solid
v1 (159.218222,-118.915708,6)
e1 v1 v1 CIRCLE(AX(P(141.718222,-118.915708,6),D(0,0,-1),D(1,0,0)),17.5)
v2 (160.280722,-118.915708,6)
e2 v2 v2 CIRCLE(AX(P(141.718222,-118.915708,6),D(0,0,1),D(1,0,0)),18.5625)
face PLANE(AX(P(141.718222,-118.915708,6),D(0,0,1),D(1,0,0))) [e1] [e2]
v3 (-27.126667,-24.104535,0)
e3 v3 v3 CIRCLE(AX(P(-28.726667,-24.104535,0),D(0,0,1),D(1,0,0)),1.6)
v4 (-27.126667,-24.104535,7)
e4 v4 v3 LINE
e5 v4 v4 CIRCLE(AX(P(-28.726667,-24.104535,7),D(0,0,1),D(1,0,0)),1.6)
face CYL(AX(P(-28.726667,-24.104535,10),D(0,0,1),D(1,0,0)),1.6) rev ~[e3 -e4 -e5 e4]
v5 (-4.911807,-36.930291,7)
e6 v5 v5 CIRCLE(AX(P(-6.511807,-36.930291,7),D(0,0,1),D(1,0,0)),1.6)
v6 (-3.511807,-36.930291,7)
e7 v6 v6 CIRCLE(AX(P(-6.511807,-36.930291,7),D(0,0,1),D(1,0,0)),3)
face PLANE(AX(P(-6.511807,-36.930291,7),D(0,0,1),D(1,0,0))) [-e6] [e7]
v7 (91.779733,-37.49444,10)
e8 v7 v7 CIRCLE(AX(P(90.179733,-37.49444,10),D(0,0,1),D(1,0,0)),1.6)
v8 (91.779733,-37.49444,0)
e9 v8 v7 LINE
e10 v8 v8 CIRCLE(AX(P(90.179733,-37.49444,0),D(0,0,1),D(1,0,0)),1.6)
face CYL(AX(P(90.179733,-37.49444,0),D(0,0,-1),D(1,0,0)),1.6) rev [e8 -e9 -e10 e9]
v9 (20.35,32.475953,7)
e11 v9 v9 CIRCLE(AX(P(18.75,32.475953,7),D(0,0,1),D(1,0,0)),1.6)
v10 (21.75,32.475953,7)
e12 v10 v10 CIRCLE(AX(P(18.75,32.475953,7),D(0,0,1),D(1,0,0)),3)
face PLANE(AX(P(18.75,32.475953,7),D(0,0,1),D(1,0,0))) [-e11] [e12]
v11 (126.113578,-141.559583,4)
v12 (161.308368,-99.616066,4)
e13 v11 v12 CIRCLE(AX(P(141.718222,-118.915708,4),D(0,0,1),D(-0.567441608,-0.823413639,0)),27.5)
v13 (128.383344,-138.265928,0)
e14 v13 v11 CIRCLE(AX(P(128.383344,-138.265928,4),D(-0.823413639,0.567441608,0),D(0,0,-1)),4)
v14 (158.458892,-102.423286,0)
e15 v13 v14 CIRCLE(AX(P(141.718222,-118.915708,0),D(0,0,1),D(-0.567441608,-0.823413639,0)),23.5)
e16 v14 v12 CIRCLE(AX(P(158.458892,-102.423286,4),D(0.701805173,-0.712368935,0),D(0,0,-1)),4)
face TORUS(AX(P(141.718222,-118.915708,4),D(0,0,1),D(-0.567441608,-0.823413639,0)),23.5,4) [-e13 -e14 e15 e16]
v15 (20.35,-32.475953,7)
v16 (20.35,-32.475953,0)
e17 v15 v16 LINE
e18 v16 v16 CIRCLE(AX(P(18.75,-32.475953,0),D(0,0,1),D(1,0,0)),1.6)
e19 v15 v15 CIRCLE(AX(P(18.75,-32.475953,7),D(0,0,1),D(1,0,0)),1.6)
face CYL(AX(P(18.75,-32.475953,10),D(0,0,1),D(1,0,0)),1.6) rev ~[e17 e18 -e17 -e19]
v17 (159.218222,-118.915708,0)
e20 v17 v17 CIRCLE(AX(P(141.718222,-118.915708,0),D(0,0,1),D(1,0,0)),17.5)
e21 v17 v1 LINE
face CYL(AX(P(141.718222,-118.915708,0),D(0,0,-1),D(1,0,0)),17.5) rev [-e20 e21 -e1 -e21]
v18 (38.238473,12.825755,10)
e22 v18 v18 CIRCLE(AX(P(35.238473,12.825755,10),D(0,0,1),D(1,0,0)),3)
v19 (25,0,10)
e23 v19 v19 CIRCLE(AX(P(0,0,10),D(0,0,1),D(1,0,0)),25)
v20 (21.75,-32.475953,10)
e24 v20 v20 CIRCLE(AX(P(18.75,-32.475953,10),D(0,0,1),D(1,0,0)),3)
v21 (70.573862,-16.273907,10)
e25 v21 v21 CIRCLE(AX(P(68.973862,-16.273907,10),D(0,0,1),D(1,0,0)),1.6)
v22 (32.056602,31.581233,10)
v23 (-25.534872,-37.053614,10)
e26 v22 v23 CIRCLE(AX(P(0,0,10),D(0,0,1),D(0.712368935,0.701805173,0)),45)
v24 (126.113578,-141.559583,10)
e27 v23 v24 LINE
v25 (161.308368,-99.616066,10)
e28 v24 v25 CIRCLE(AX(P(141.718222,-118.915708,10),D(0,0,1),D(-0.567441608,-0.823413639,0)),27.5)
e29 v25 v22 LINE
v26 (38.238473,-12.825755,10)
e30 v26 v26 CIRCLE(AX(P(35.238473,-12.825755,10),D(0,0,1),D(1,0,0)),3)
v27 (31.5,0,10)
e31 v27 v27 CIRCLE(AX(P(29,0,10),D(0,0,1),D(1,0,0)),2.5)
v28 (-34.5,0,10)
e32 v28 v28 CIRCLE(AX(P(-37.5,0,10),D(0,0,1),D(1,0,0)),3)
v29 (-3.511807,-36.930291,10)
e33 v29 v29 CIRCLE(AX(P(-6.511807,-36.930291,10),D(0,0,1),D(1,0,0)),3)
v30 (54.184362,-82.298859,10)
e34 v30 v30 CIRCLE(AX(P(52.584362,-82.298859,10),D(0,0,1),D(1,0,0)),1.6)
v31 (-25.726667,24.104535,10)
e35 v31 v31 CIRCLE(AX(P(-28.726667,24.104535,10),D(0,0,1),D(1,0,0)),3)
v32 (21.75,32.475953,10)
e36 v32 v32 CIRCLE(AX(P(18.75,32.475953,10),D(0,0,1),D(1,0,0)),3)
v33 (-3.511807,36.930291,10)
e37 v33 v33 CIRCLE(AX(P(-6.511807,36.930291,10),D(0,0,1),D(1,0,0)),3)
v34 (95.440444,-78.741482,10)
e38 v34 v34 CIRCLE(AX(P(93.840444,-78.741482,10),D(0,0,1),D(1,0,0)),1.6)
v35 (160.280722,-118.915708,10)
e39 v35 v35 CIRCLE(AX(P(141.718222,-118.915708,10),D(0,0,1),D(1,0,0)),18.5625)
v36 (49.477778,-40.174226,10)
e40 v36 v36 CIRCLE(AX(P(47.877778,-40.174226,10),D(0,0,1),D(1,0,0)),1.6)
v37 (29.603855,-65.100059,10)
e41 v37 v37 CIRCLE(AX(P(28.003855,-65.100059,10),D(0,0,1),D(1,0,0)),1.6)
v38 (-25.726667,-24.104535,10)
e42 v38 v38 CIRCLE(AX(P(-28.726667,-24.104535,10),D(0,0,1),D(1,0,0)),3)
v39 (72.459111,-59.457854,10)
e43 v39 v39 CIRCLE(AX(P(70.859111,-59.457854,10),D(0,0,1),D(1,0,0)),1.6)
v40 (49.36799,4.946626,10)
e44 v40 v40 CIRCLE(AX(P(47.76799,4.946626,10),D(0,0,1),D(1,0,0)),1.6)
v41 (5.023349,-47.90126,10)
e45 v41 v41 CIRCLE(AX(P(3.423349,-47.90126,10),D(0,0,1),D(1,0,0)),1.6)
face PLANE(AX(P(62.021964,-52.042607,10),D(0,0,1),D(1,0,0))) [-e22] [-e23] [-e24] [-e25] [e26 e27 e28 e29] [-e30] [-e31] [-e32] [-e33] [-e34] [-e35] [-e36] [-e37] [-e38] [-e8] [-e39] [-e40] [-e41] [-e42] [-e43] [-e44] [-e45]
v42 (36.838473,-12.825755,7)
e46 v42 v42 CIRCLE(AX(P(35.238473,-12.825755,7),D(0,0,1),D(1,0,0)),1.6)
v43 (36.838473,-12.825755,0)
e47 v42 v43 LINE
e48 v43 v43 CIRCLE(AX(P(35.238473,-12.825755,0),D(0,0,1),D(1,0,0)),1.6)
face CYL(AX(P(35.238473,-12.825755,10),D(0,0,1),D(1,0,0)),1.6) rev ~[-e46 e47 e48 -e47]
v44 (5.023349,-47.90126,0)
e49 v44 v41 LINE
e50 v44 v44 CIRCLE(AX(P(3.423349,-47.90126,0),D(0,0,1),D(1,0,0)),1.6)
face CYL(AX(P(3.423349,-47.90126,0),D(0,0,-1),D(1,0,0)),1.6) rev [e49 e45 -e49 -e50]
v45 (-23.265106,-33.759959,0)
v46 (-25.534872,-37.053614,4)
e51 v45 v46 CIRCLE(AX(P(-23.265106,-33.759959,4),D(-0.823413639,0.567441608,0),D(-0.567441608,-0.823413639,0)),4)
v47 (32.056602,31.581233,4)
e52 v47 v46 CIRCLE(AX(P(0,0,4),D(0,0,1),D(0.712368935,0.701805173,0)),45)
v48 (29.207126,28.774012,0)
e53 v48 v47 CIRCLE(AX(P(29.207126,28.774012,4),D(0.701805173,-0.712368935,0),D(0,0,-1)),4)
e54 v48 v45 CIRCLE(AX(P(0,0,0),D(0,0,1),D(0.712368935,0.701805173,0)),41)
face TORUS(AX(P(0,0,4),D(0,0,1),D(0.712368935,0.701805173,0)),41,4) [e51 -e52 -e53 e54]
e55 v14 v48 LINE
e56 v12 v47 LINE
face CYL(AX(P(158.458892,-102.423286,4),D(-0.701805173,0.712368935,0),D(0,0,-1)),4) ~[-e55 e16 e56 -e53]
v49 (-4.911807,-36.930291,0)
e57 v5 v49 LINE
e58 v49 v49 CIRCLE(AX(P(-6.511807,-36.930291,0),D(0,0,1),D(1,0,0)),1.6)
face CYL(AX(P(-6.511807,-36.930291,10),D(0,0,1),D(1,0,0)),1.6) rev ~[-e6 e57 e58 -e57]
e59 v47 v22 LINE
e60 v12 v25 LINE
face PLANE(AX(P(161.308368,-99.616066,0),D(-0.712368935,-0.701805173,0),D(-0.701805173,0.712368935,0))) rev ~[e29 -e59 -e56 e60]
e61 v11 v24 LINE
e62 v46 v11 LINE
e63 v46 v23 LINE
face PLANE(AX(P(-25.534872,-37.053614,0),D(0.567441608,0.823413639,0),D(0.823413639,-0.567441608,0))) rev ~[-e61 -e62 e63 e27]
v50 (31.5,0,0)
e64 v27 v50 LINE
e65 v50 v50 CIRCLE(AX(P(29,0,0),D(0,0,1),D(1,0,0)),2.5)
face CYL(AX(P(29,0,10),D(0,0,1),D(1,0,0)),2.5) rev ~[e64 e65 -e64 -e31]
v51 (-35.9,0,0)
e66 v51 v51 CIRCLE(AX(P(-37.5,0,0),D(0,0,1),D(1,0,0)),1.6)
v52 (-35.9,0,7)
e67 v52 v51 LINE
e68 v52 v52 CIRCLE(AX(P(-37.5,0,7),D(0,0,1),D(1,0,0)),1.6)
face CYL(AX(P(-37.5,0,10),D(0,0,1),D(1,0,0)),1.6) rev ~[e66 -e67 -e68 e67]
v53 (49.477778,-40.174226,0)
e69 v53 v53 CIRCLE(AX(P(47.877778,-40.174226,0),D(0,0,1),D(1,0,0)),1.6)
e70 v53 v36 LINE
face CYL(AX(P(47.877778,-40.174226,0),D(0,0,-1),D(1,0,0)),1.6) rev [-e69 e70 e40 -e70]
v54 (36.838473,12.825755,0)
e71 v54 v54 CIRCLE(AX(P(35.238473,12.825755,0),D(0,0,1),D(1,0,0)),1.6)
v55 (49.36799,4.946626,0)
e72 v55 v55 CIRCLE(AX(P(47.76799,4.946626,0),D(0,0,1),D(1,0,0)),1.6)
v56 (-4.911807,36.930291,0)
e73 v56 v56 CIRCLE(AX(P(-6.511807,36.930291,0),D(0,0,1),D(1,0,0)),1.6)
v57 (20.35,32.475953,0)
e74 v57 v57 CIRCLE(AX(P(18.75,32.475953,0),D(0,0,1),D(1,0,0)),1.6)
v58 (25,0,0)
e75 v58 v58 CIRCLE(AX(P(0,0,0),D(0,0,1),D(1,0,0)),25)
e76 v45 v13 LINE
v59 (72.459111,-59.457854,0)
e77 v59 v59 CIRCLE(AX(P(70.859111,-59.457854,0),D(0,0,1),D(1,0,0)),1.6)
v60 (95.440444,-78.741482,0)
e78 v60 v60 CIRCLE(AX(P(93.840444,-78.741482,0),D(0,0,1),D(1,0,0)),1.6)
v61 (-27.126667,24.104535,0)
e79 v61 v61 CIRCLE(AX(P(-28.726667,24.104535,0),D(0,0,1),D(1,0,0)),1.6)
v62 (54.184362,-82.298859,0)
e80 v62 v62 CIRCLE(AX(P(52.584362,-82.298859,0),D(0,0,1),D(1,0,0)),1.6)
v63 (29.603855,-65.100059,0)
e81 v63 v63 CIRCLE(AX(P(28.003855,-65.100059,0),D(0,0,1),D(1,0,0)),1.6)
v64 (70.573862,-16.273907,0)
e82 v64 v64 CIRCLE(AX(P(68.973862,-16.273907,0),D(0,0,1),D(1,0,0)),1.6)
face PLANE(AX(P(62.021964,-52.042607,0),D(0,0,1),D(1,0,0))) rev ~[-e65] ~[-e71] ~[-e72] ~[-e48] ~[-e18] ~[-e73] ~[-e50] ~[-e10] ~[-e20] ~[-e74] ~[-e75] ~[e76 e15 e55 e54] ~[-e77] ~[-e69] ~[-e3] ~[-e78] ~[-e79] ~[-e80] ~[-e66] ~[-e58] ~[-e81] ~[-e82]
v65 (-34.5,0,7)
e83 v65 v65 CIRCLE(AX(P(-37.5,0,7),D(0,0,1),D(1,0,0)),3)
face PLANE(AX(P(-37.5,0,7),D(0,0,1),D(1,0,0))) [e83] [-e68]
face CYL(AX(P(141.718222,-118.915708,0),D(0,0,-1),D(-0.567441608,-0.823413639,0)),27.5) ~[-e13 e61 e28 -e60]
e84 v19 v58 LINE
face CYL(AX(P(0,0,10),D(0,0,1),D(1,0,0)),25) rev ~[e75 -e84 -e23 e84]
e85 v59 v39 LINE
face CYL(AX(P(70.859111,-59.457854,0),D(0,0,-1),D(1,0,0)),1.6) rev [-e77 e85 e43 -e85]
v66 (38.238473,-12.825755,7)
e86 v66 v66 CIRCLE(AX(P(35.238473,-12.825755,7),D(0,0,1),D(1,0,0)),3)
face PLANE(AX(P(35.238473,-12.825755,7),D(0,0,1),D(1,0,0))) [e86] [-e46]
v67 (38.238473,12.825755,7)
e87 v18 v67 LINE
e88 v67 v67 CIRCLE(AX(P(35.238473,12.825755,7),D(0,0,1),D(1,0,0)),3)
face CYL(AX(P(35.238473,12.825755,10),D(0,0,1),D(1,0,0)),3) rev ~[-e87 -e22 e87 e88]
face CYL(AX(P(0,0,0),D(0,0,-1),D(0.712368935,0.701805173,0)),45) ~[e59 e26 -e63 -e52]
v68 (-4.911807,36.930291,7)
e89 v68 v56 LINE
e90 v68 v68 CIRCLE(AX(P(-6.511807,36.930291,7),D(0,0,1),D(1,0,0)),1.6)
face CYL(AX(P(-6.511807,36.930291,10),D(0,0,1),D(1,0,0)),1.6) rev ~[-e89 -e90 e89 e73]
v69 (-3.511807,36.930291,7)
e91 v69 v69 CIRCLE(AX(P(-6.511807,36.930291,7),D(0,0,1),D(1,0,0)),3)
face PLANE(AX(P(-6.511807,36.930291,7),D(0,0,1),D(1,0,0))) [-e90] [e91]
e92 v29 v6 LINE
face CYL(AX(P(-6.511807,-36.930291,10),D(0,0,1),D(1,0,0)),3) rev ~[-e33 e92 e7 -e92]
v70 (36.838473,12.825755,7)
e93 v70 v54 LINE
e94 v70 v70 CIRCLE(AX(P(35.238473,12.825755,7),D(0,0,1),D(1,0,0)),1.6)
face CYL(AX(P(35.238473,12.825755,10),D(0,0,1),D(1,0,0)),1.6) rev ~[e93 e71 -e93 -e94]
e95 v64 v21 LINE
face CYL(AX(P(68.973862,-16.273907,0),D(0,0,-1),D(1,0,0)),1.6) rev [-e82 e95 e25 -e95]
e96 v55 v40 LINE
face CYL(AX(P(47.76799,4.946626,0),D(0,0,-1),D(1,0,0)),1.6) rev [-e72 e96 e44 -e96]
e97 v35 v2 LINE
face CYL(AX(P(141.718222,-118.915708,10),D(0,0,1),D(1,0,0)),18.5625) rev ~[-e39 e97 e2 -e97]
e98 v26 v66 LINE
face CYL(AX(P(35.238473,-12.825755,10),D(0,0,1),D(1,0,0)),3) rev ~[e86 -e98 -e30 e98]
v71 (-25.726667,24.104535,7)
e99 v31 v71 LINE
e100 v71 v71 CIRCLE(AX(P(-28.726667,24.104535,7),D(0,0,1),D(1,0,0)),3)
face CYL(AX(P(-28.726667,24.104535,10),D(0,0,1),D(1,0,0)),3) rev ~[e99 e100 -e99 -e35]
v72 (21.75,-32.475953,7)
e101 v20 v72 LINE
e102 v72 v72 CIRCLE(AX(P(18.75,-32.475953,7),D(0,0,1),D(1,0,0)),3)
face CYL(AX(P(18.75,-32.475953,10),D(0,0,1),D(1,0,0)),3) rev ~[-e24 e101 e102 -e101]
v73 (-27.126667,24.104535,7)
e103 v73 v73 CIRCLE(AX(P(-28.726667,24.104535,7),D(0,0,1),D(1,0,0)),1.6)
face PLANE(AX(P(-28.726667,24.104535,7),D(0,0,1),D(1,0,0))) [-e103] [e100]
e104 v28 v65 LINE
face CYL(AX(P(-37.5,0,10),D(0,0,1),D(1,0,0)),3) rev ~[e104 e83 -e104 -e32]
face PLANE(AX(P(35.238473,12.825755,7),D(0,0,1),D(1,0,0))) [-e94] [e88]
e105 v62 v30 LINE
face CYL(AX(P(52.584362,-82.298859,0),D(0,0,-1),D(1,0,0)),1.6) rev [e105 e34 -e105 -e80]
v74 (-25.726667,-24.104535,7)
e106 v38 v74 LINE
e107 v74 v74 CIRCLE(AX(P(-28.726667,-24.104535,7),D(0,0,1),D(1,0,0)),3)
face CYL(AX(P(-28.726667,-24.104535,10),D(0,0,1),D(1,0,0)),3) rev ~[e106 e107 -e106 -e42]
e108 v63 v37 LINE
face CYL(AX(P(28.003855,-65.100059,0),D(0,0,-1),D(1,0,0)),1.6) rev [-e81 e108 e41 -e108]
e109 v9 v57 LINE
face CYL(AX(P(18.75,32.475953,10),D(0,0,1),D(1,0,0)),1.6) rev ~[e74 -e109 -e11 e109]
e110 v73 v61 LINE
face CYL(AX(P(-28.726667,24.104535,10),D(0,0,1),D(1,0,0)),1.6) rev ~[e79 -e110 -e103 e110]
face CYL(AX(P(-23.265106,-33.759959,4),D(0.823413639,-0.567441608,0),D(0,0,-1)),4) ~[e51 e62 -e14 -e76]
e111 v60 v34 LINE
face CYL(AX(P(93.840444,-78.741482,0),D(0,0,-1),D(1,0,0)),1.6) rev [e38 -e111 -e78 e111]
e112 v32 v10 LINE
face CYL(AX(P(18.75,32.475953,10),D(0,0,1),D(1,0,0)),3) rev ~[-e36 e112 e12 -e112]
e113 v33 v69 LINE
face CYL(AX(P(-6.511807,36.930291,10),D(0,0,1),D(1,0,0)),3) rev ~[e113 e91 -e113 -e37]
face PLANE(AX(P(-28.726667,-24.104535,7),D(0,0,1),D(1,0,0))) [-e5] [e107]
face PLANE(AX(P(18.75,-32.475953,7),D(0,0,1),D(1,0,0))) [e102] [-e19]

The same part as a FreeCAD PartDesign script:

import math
import FreeCAD as App
import Part
import Sketcher

V = App.Vector


def edges_at(feature, points):
    """Names of the edges that pass closest to the given points."""
    edges = feature.Shape.Edges
    near = lambda p: min(range(len(edges)), key=lambda i: edges[i].distToShape(Part.Vertex(*p))[0])
    return sorted({f"Edge{near(p) + 1}" for p in points})

doc = App.newDocument("Part")
body = doc.addObject("PartDesign::Body", "Body")

sketch1 = doc.addObject("Sketcher::SketchObject", "Sketch")
body.addObject(sketch1)
sketch1.AttachmentSupport = (doc.XY_Plane, [""])
sketch1.MapMode = "FlatFace"
sketch1.addGeometry([
    Part.LineSegment(V(-25.534872, -37.053614, 0), V(126.113578, -141.559583, 0)),
    Part.ArcOfCircle(Part.Circle(V(141.718222, -118.915708, 0), V(0, 0, 1), 27.5), math.radians(-124.572013), math.radians(44.572013)),
    Part.LineSegment(V(161.308368, -99.616066, 0), V(32.056602, 31.581233, 0)),
    Part.ArcOfCircle(Part.Circle(V(0, 0, 0), V(0, 0, 1), 45), math.radians(44.572013), math.radians(235.427987)),
    Part.Circle(V(28.003855, -65.100059, 0), V(0, 0, 1), 1.6),
    Part.Circle(V(52.584362, -82.298859, 0), V(0, 0, 1), 1.6),
    Part.Circle(V(141.718222, -118.915708, 0), V(0, 0, 1), 17.5),
    Part.Circle(V(93.840444, -78.741482, 0), V(0, 0, 1), 1.6),
    Part.Circle(V(3.423349, -47.90126, 0), V(0, 0, 1), 1.6),
    Part.Circle(V(70.859111, -59.457854, 0), V(0, 0, 1), 1.6),
    Part.Circle(V(47.877778, -40.174226, 0), V(0, 0, 1), 1.6),
    Part.Circle(V(68.973862, -16.273907, 0), V(0, 0, 1), 1.6),
    Part.Circle(V(47.76799, 4.946626, 0), V(0, 0, 1), 1.6),
    Part.Circle(V(90.179733, -37.49444, 0), V(0, 0, 1), 1.6),
], False)
sketch1.addConstraint([
    Sketcher.Constraint("Tangent", 0, 2, 1, 1),
    Sketcher.Constraint("Tangent", 1, 2, 2, 1),
    Sketcher.Constraint("Tangent", 2, 2, 3, 1),
    Sketcher.Constraint("Tangent", 3, 2, 0, 1),
    Sketcher.Constraint("Coincident", 3, 3, -1, 1),
    Sketcher.Constraint("Coincident", 6, 3, 1, 3),
    Sketcher.Constraint("Equal", 4, 5),
    Sketcher.Constraint("Equal", 5, 7),
    Sketcher.Constraint("Equal", 7, 8),
    Sketcher.Constraint("Equal", 8, 9),
    Sketcher.Constraint("Equal", 9, 10),
    Sketcher.Constraint("Equal", 10, 11),
    Sketcher.Constraint("Equal", 11, 12),
    Sketcher.Constraint("Equal", 12, 13),
    Sketcher.Constraint("Diameter", 6, 35.0),
    Sketcher.Constraint("Radius", 3, 45.0),
    Sketcher.Constraint("Diameter", 4, 3.2),
    Sketcher.Constraint("Radius", 1, 27.5),
    Sketcher.Constraint("DistanceY", 5, 3, 4, 3, 17.1988),
    Sketcher.Constraint("DistanceY", 4, 3, 8, 3, 17.1988),
    Sketcher.Constraint("DistanceX", 5, 3, 11, 3, 16.3895),
    Sketcher.Constraint("DistanceY", 0, 2, 7, 3, 62.818101),
    Sketcher.Constraint("DistanceX", -1, 1, 1, 3, 141.718222),
    Sketcher.Constraint("DistanceY", 4, 3, -1, 1, 65.100059),
    Sketcher.Constraint("DistanceX", -1, 1, 5, 3, 52.584362),
    Sketcher.Constraint("DistanceX", -1, 1, 8, 3, 3.423349),
    Sketcher.Constraint("DistanceX", -1, 1, 9, 3, 70.859111),
    Sketcher.Constraint("DistanceX", -1, 1, 12, 3, 47.76799),
    Sketcher.Constraint("DistanceY", 13, 3, -1, 1, 37.49444),
    Sketcher.Constraint("DistanceY", 1, 3, 4, 3, 53.815648),
    Sketcher.Constraint("DistanceX", 4, 3, 7, 3, 65.836589),
    Sketcher.Constraint("DistanceY", 7, 3, 9, 3, 19.283628),
    Sketcher.Constraint("DistanceY", 9, 3, 10, 3, 19.283628),
    Sketcher.Constraint("DistanceX", 8, 3, 10, 3, 44.454429),
    Sketcher.Constraint("DistanceY", 10, 3, 11, 3, 23.900319),
    Sketcher.Constraint("DistanceY", 10, 3, 12, 3, 45.120852),
    Sketcher.Constraint("DistanceX", 9, 3, 13, 3, 19.320622),
    Sketcher.Constraint("DistanceX", 13, 3, 7, 3, 3.660711),
])
pad1 = doc.addObject("PartDesign::Pad", "Pad")
body.addObject(pad1)
pad1.Profile = sketch1
pad1.Length = 10

sketch2 = doc.addObject("Sketcher::SketchObject", "Sketch001")
body.addObject(sketch2)
sketch2.AttachmentSupport = (doc.XY_Plane, [""])
sketch2.MapMode = "FlatFace"
sketch2.AttachmentOffset = App.Placement(V(0, 0, 10), App.Rotation())
sketch2.addGeometry([
    Part.Circle(V(0, 0, 0), V(0, 0, 1), 25),
    Part.Circle(V(29, 0, 0), V(0, 0, 1), 2.5),
    Part.Circle(V(-37.5, 0, 0), V(0, 0, 1), 1.6),
    Part.Circle(V(-28.726667, 24.104535, 0), V(0, 0, 1), 1.6),
    Part.Circle(V(-6.511807, 36.930291, 0), V(0, 0, 1), 1.6),
    Part.Circle(V(18.75, 32.475953, 0), V(0, 0, 1), 1.6),
    Part.Circle(V(35.238473, 12.825755, 0), V(0, 0, 1), 1.6),
    Part.Circle(V(35.238473, -12.825755, 0), V(0, 0, 1), 1.6),
    Part.Circle(V(18.75, -32.475953, 0), V(0, 0, 1), 1.6),
    Part.Circle(V(-6.511807, -36.930291, 0), V(0, 0, 1), 1.6),
    Part.Circle(V(-28.726667, -24.104535, 0), V(0, 0, 1), 1.6),
], False)
sketch2.addConstraint([
    Sketcher.Constraint("Coincident", 0, 3, -1, 1),
    Sketcher.Constraint("Equal", 2, 3),
    Sketcher.Constraint("Equal", 3, 4),
    Sketcher.Constraint("Equal", 4, 5),
    Sketcher.Constraint("Equal", 5, 6),
    Sketcher.Constraint("Equal", 6, 7),
    Sketcher.Constraint("Equal", 7, 8),
    Sketcher.Constraint("Equal", 8, 9),
    Sketcher.Constraint("Equal", 9, 10),
    Sketcher.Constraint("Symmetric", 6, 3, 7, 3, -1),
    Sketcher.Constraint("Symmetric", 5, 3, 8, 3, -1),
    Sketcher.Constraint("Symmetric", 4, 3, 9, 3, -1),
    Sketcher.Constraint("Symmetric", 3, 3, 10, 3, -1),
    Sketcher.Constraint("PointOnObject", 1, 3, -1),
    Sketcher.Constraint("PointOnObject", 2, 3, -1),
    Sketcher.Constraint("Diameter", 0, 50.0),
    Sketcher.Constraint("Diameter", 1, 5.0),
    Sketcher.Constraint("Diameter", 2, 3.2),
    Sketcher.Constraint("DistanceX", -1, 1, 1, 3, 29.0),
    Sketcher.Constraint("DistanceX", 2, 3, -1, 1, 37.5),
    Sketcher.Constraint("DistanceX", -1, 1, 5, 3, 18.75),
    Sketcher.Constraint("DistanceY", -1, 1, 4, 3, 36.930291),
    Sketcher.Constraint("DistanceX", 3, 3, 4, 3, 22.21486),
    Sketcher.Constraint("DistanceY", 5, 3, 4, 3, 4.454338),
    Sketcher.Constraint("DistanceX", 4, 3, 6, 3, 41.75028),
    Sketcher.Constraint("DistanceY", 6, 3, 3, 3, 11.27878),
    Sketcher.Constraint("DistanceY", 7, 3, 6, 3, 25.651511),
    Sketcher.Constraint("DistanceX", 3, 3, -1, 1, 28.726667),
])
pocket1 = doc.addObject("PartDesign::Pocket", "Pocket")
body.addObject(pocket1)
pocket1.Profile = sketch2
pocket1.Type = "ThroughAll"

sketch3 = doc.addObject("Sketcher::SketchObject", "Sketch002")
body.addObject(sketch3)
sketch3.AttachmentSupport = (doc.XY_Plane, [""])
sketch3.MapMode = "FlatFace"
sketch3.AttachmentOffset = App.Placement(V(0, 0, 10), App.Rotation())
sketch3.addGeometry(Part.Circle(V(141.718222, -118.915708, 0), V(0, 0, 1), 18.5625), False)
sketch3.addConstraint([
    Sketcher.Constraint("Diameter", 0, 37.125),
    Sketcher.Constraint("DistanceX", -1, 1, 0, 3, 141.718222),
    Sketcher.Constraint("DistanceY", 0, 3, -1, 1, 118.915708),
])
pocket2 = doc.addObject("PartDesign::Pocket", "Pocket001")
body.addObject(pocket2)
pocket2.Profile = sketch3
pocket2.Length = 4

sketch4 = doc.addObject("Sketcher::SketchObject", "Sketch003")
body.addObject(sketch4)
sketch4.AttachmentSupport = (doc.XY_Plane, [""])
sketch4.MapMode = "FlatFace"
sketch4.AttachmentOffset = App.Placement(V(0, 0, 10), App.Rotation())
sketch4.addGeometry([
    Part.Circle(V(-28.726667, 24.104535, 0), V(0, 0, 1), 3),
    Part.Circle(V(-6.511807, 36.930291, 0), V(0, 0, 1), 3),
    Part.Circle(V(18.75, 32.475953, 0), V(0, 0, 1), 3),
    Part.Circle(V(35.238473, 12.825755, 0), V(0, 0, 1), 3),
    Part.Circle(V(35.238473, -12.825755, 0), V(0, 0, 1), 3),
    Part.Circle(V(18.75, -32.475953, 0), V(0, 0, 1), 3),
    Part.Circle(V(-6.511807, -36.930291, 0), V(0, 0, 1), 3),
    Part.Circle(V(-28.726667, -24.104535, 0), V(0, 0, 1), 3),
    Part.Circle(V(-37.5, 0, 0), V(0, 0, 1), 3),
], False)
sketch4.addConstraint([
    Sketcher.Constraint("Equal", 0, 1),
    Sketcher.Constraint("Equal", 1, 2),
    Sketcher.Constraint("Equal", 2, 3),
    Sketcher.Constraint("Equal", 3, 4),
    Sketcher.Constraint("Equal", 4, 5),
    Sketcher.Constraint("Equal", 5, 6),
    Sketcher.Constraint("Equal", 6, 7),
    Sketcher.Constraint("Equal", 7, 8),
    Sketcher.Constraint("Symmetric", 3, 3, 4, 3, -1),
    Sketcher.Constraint("Symmetric", 2, 3, 5, 3, -1),
    Sketcher.Constraint("Symmetric", 1, 3, 6, 3, -1),
    Sketcher.Constraint("Symmetric", 0, 3, 7, 3, -1),
    Sketcher.Constraint("PointOnObject", 8, 3, -1),
    Sketcher.Constraint("Diameter", 0, 6.0),
    Sketcher.Constraint("DistanceX", 8, 3, -1, 1, 37.5),
    Sketcher.Constraint("DistanceX", -1, 1, 2, 3, 18.75),
    Sketcher.Constraint("DistanceY", -1, 1, 1, 3, 36.930291),
    Sketcher.Constraint("DistanceX", 0, 3, 1, 3, 22.21486),
    Sketcher.Constraint("DistanceY", 2, 3, 1, 3, 4.454338),
    Sketcher.Constraint("DistanceX", 1, 3, 3, 3, 41.75028),
    Sketcher.Constraint("DistanceY", 3, 3, 0, 3, 11.27878),
    Sketcher.Constraint("DistanceY", 4, 3, 3, 3, 25.651511),
    Sketcher.Constraint("DistanceX", 0, 3, -1, 1, 28.726667),
])
pocket3 = doc.addObject("PartDesign::Pocket", "Pocket002")
body.addObject(pocket3)
pocket3.Profile = sketch4
pocket3.Length = 3
doc.recompute()

fillet = doc.addObject("PartDesign::Fillet", "Fillet")
body.addObject(fillet)
fillet.Base = (pocket3, edges_at(pocket3, [
    (96.682, -34.017, 0),
    (162.784, -136.592, 0),
    (50.289, -89.307, 0),
    (-34.472, 28.925, 0),
]))
fillet.Radius = 4

doc.recompute()
